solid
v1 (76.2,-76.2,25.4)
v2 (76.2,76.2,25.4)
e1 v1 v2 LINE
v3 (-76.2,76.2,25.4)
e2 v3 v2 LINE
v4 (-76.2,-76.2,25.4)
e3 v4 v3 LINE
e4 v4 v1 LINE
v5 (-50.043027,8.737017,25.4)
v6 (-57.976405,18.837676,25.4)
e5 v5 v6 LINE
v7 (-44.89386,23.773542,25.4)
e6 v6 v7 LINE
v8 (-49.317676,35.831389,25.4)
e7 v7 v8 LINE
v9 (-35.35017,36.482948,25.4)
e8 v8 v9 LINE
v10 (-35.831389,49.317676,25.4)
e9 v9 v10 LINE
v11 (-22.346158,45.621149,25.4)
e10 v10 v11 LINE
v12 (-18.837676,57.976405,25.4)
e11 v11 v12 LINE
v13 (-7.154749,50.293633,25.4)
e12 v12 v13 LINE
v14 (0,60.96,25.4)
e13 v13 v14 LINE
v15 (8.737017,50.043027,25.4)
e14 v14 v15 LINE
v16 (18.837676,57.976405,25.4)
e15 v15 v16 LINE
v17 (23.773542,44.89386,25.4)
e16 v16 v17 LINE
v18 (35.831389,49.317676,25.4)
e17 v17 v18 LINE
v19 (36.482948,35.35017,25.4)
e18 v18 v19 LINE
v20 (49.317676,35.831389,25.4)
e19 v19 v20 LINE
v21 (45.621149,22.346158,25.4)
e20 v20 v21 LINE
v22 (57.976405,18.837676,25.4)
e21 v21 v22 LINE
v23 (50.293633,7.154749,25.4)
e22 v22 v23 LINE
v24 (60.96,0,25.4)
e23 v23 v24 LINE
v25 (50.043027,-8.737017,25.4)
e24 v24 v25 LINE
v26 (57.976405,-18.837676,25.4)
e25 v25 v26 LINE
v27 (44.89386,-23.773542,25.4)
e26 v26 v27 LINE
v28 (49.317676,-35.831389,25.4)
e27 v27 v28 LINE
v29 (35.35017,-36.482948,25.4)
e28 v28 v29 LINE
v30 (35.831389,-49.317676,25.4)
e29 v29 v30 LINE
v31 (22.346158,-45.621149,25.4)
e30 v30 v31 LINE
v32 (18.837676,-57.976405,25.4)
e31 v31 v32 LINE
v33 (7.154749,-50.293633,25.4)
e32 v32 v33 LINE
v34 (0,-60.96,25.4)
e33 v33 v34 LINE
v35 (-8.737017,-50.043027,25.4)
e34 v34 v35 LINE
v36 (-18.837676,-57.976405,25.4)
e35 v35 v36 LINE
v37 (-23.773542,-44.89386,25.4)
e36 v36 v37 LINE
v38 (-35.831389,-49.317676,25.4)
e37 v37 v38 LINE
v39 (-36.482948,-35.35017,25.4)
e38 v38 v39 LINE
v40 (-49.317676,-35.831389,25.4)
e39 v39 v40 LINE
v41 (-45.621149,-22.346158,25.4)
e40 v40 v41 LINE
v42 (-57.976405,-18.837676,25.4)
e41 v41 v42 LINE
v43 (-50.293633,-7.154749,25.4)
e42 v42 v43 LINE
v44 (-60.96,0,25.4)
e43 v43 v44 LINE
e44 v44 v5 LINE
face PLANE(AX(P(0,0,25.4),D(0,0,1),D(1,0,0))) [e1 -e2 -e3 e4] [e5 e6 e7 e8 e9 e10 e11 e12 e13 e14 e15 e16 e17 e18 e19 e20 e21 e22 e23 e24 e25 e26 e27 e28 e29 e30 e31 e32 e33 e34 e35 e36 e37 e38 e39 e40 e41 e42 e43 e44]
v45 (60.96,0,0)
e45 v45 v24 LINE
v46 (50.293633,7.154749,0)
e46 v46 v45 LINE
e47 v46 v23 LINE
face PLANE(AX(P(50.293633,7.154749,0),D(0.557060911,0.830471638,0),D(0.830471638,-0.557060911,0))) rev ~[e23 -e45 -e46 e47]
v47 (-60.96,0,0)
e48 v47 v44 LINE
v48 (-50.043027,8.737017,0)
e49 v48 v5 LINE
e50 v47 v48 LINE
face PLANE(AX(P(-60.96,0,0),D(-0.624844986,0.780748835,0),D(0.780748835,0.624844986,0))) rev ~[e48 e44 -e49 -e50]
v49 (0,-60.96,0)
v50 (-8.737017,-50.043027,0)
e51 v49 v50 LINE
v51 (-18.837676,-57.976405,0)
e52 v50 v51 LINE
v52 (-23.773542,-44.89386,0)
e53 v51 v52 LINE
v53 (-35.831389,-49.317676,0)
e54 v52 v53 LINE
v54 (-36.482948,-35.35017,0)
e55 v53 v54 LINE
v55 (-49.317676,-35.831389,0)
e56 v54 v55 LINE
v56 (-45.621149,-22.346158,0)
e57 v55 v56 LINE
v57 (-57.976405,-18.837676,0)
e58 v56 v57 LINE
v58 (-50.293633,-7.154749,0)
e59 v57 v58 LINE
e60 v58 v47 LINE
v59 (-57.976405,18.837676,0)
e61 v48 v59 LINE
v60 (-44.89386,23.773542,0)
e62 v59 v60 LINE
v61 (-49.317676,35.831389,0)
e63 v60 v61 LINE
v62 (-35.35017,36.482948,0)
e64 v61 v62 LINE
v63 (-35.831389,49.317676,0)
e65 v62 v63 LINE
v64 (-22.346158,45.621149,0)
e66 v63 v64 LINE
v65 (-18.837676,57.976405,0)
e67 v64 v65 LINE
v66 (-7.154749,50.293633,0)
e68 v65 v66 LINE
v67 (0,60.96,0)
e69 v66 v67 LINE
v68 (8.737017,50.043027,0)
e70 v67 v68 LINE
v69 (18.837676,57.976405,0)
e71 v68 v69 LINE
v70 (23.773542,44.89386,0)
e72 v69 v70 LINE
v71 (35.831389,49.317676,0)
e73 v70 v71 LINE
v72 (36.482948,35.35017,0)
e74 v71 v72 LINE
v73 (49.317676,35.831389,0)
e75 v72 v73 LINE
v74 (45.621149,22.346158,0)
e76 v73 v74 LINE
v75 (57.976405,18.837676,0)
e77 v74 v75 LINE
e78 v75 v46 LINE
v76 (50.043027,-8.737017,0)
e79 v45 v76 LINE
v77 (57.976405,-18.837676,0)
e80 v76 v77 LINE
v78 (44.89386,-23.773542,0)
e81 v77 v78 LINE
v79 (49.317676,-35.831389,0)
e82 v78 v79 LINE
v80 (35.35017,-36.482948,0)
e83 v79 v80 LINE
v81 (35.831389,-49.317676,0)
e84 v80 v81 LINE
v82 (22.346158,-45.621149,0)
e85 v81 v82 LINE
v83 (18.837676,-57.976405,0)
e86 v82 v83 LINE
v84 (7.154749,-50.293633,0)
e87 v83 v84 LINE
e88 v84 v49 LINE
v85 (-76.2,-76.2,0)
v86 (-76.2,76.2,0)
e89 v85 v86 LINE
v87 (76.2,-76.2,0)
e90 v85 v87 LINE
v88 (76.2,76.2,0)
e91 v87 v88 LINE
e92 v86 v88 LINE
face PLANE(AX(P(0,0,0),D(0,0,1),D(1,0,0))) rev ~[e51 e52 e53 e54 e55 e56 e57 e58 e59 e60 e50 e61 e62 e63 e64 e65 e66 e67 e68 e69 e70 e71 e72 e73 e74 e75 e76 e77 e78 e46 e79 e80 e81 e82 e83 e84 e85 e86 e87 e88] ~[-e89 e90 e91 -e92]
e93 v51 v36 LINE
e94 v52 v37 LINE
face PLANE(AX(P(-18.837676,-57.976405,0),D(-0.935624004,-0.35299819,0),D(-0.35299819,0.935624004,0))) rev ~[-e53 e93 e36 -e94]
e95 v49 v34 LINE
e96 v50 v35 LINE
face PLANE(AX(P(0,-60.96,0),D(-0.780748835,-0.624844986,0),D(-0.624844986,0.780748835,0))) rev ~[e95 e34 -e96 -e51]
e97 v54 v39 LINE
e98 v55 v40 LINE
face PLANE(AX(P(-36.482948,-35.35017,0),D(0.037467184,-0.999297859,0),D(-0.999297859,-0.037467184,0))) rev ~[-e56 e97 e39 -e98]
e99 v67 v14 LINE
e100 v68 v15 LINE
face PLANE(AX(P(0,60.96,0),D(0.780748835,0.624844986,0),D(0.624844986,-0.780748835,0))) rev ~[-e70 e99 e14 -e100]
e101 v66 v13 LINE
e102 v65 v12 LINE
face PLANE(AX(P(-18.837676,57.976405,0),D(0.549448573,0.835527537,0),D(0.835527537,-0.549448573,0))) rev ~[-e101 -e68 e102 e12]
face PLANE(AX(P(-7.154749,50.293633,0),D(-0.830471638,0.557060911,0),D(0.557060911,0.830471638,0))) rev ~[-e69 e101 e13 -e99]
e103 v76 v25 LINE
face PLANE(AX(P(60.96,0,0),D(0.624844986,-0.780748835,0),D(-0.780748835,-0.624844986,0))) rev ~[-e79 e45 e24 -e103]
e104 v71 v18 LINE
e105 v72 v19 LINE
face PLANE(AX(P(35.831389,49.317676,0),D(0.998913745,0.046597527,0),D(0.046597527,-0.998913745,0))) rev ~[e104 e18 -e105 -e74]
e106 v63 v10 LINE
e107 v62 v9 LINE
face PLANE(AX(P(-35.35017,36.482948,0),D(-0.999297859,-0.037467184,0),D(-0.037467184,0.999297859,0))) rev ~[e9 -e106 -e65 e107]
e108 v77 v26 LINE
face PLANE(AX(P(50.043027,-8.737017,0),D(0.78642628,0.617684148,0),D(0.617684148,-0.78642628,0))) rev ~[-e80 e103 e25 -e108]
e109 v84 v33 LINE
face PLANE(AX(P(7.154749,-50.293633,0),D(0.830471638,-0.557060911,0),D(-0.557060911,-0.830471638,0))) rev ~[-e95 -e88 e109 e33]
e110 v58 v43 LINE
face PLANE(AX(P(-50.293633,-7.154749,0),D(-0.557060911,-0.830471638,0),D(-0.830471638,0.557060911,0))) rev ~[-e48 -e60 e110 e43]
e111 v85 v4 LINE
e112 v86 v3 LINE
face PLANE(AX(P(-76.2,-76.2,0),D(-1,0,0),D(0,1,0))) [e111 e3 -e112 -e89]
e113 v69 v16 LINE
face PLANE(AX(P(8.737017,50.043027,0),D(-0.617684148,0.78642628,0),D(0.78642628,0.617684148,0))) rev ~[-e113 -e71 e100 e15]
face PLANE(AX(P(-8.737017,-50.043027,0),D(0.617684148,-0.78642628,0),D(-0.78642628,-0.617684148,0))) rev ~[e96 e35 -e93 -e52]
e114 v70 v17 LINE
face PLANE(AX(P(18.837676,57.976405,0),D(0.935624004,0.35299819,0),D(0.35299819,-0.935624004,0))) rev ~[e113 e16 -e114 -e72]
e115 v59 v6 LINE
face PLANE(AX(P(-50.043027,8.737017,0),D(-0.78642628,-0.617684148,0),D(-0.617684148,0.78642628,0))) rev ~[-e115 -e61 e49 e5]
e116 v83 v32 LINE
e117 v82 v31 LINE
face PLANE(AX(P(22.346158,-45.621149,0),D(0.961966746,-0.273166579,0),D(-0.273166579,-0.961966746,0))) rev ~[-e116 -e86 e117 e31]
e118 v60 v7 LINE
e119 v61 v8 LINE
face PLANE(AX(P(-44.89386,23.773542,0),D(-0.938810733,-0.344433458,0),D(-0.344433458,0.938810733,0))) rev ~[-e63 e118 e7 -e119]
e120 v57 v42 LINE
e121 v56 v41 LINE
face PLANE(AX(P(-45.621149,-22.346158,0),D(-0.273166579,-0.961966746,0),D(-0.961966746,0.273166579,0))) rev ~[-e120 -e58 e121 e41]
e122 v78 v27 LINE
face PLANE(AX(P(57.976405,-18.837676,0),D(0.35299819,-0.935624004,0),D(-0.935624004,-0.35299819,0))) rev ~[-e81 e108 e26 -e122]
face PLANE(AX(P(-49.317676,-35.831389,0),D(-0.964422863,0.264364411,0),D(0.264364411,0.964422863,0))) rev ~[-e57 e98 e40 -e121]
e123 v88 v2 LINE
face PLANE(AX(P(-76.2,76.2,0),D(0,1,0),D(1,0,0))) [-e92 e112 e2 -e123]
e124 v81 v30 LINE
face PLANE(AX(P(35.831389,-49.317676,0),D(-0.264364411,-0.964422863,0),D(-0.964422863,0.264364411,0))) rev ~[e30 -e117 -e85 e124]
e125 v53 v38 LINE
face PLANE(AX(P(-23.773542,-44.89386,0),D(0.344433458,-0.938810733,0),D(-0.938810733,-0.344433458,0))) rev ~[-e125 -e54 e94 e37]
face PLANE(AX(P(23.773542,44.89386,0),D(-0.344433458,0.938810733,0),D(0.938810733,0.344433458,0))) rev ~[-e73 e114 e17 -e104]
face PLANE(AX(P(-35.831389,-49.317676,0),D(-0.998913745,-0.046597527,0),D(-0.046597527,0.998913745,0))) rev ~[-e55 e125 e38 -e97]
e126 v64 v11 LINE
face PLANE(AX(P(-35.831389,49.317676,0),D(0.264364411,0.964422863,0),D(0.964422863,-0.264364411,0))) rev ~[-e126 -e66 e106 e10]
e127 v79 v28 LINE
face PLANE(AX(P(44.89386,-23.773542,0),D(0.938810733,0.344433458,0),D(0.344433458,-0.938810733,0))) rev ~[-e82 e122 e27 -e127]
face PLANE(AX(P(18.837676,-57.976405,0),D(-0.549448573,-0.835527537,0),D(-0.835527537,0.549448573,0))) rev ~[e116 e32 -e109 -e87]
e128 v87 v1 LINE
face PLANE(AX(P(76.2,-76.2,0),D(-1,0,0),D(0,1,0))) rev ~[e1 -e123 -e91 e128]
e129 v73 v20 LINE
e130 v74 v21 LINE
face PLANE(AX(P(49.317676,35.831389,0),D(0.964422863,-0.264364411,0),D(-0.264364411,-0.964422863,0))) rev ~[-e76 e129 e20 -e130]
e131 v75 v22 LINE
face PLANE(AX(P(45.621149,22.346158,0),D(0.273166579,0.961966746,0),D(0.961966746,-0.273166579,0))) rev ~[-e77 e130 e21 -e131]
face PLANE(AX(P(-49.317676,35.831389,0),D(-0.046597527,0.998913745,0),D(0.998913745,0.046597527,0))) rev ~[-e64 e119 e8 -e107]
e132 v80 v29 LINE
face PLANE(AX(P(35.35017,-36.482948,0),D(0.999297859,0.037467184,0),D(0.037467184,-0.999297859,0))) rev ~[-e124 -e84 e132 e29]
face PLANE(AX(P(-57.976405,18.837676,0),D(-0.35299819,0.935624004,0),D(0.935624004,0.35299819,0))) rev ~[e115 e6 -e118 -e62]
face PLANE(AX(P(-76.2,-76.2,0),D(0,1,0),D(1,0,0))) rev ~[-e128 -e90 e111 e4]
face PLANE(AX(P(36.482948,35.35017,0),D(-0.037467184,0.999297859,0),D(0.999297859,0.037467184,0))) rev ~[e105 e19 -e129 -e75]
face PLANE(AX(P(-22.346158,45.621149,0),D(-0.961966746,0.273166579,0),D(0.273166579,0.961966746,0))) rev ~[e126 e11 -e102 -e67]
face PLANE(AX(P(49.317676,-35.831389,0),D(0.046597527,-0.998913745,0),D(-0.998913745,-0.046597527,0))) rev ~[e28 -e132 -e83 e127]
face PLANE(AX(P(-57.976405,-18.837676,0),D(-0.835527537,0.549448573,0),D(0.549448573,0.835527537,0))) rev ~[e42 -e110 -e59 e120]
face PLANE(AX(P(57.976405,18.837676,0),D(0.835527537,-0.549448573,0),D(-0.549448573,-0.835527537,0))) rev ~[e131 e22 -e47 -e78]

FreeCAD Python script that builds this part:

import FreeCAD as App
import Part
import Sketcher
from FreeCAD import Vector
Q = App.Units.Quantity

doc = App.newDocument("Part")
body = doc.addObject("PartDesign::Body", "Body")

# Sketch on XY plane
sketch1 = body.newObject("Sketcher::SketchObject", "Sketch")
sketch1.AttachmentSupport = (doc.getObject("XY_Plane"), [""])
sketch1.MapMode = "FlatFace"
sketch1.addGeometry(Part.LineSegment(Vector(-76.2, 76.2, 0), Vector(-76.2, -76.2, 0)), False)
sketch1.addGeometry(Part.LineSegment(Vector(-76.2, -76.2, 0), Vector(76.2, -76.2, 0)), False)
sketch1.addGeometry(Part.LineSegment(Vector(76.2, -76.2, 0), Vector(76.2, 76.2, 0)), False)
sketch1.addGeometry(Part.LineSegment(Vector(76.2, 76.2, 0), Vector(-76.2, 76.2, 0)), False)
sketch1.addGeometry(Part.LineSegment(Vector(-18.837676, 57.976405, 0), Vector(-7.154749, 50.293633, 0)), False)
sketch1.addGeometry(Part.LineSegment(Vector(-7.154749, 50.293633, 0), Vector(0, 60.96, 0)), False)
sketch1.addGeometry(Part.LineSegment(Vector(0, 60.96, 0), Vector(8.737017, 50.043027, 0)), False)
sketch1.addGeometry(Part.LineSegment(Vector(8.737017, 50.043027, 0), Vector(18.837676, 57.976405, 0)), False)
sketch1.addGeometry(Part.LineSegment(Vector(18.837676, 57.976405, 0), Vector(23.773542, 44.89386, 0)), False)
sketch1.addGeometry(Part.LineSegment(Vector(23.773542, 44.89386, 0), Vector(35.831389, 49.317676, 0)), False)
sketch1.addGeometry(Part.LineSegment(Vector(35.831389, 49.317676, 0), Vector(36.482948, 35.35017, 0)), False)
sketch1.addGeometry(Part.LineSegment(Vector(36.482948, 35.35017, 0), Vector(49.317676, 35.831389, 0)), False)
sketch1.addGeometry(Part.LineSegment(Vector(49.317676, 35.831389, 0), Vector(45.621149, 22.346158, 0)), False)
sketch1.addGeometry(Part.LineSegment(Vector(45.621149, 22.346158, 0), Vector(57.976405, 18.837676, 0)), False)
sketch1.addGeometry(Part.LineSegment(Vector(57.976405, 18.837676, 0), Vector(50.293633, 7.154749, 0)), False)
sketch1.addGeometry(Part.LineSegment(Vector(50.293633, 7.154749, 0), Vector(60.96, 0, 0)), False)
sketch1.addGeometry(Part.LineSegment(Vector(60.96, 0, 0), Vector(50.043027, -8.737017, 0)), False)
sketch1.addGeometry(Part.LineSegment(Vector(50.043027, -8.737017, 0), Vector(57.976405, -18.837676, 0)), False)
sketch1.addGeometry(Part.LineSegment(Vector(57.976405, -18.837676, 0), Vector(44.89386, -23.773542, 0)), False)
sketch1.addGeometry(Part.LineSegment(Vector(44.89386, -23.773542, 0), Vector(49.317676, -35.831389, 0)), False)
sketch1.addGeometry(Part.LineSegment(Vector(49.317676, -35.831389, 0), Vector(35.35017, -36.482948, 0)), False)
sketch1.addGeometry(Part.LineSegment(Vector(35.35017, -36.482948, 0), Vector(35.831389, -49.317676, 0)), False)
sketch1.addGeometry(Part.LineSegment(Vector(35.831389, -49.317676, 0), Vector(22.346158, -45.621149, 0)), False)
sketch1.addGeometry(Part.LineSegment(Vector(22.346158, -45.621149, 0), Vector(18.837676, -57.976405, 0)), False)
sketch1.addGeometry(Part.LineSegment(Vector(18.837676, -57.976405, 0), Vector(7.154749, -50.293633, 0)), False)
sketch1.addGeometry(Part.LineSegment(Vector(7.154749, -50.293633, 0), Vector(0, -60.96, 0)), False)
sketch1.addGeometry(Part.LineSegment(Vector(0, -60.96, 0), Vector(-8.737017, -50.043027, 0)), False)
sketch1.addGeometry(Part.LineSegment(Vector(-8.737017, -50.043027, 0), Vector(-18.837676, -57.976405, 0)), False)
sketch1.addGeometry(Part.LineSegment(Vector(-18.837676, -57.976405, 0), Vector(-23.773542, -44.89386, 0)), False)
sketch1.addGeometry(Part.LineSegment(Vector(-23.773542, -44.89386, 0), Vector(-35.831389, -49.317676, 0)), False)
sketch1.addGeometry(Part.LineSegment(Vector(-35.831389, -49.317676, 0), Vector(-36.482948, -35.35017, 0)), False)
sketch1.addGeometry(Part.LineSegment(Vector(-36.482948, -35.35017, 0), Vector(-49.317676, -35.831389, 0)), False)
sketch1.addGeometry(Part.LineSegment(Vector(-49.317676, -35.831389, 0), Vector(-45.621149, -22.346158, 0)), False)
sketch1.addGeometry(Part.LineSegment(Vector(-45.621149, -22.346158, 0), Vector(-57.976405, -18.837676, 0)), False)
sketch1.addGeometry(Part.LineSegment(Vector(-57.976405, -18.837676, 0), Vector(-50.293633, -7.154749, 0)), False)
sketch1.addGeometry(Part.LineSegment(Vector(-50.293633, -7.154749, 0), Vector(-60.96, 0, 0)), False)
sketch1.addGeometry(Part.LineSegment(Vector(-60.96, 0, 0), Vector(-50.043027, 8.737017, 0)), False)
sketch1.addGeometry(Part.LineSegment(Vector(-50.043027, 8.737017, 0), Vector(-57.976405, 18.837676, 0)), False)
sketch1.addGeometry(Part.LineSegment(Vector(-57.976405, 18.837676, 0), Vector(-44.89386, 23.773542, 0)), False)
sketch1.addGeometry(Part.LineSegment(Vector(-44.89386, 23.773542, 0), Vector(-49.317676, 35.831389, 0)), False)
sketch1.addGeometry(Part.LineSegment(Vector(-49.317676, 35.831389, 0), Vector(-35.35017, 36.482948, 0)), False)
sketch1.addGeometry(Part.LineSegment(Vector(-35.35017, 36.482948, 0), Vector(-35.831389, 49.317676, 0)), False)
sketch1.addGeometry(Part.LineSegment(Vector(-35.831389, 49.317676, 0), Vector(-22.346158, 45.621149, 0)), False)
sketch1.addGeometry(Part.LineSegment(Vector(-22.346158, 45.621149, 0), Vector(-18.837676, 57.976405, 0)), False)
sketch1.addConstraint(Sketcher.Constraint("Coincident", 0, 2, 1, 1))
sketch1.addConstraint(Sketcher.Constraint("Coincident", 1, 2, 2, 1))
sketch1.addConstraint(Sketcher.Constraint("Coincident", 2, 2, 3, 1))
sketch1.addConstraint(Sketcher.Constraint("Coincident", 3, 2, 0, 1))
sketch1.addConstraint(Sketcher.Constraint("Coincident", 4, 2, 5, 1))
sketch1.addConstraint(Sketcher.Constraint("Coincident", 5, 2, 6, 1))
sketch1.addConstraint(Sketcher.Constraint("Coincident", 6, 2, 7, 1))
sketch1.addConstraint(Sketcher.Constraint("Coincident", 7, 2, 8, 1))
sketch1.addConstraint(Sketcher.Constraint("Coincident", 8, 2, 9, 1))
sketch1.addConstraint(Sketcher.Constraint("Coincident", 9, 2, 10, 1))
sketch1.addConstraint(Sketcher.Constraint("Coincident", 10, 2, 11, 1))
sketch1.addConstraint(Sketcher.Constraint("Coincident", 11, 2, 12, 1))
sketch1.addConstraint(Sketcher.Constraint("Coincident", 12, 2, 13, 1))
sketch1.addConstraint(Sketcher.Constraint("Coincident", 13, 2, 14, 1))
sketch1.addConstraint(Sketcher.Constraint("Coincident", 14, 2, 15, 1))
sketch1.addConstraint(Sketcher.Constraint("Coincident", 15, 2, 16, 1))
sketch1.addConstraint(Sketcher.Constraint("Coincident", 16, 2, 17, 1))
sketch1.addConstraint(Sketcher.Constraint("Coincident", 17, 2, 18, 1))
sketch1.addConstraint(Sketcher.Constraint("Coincident", 18, 2, 19, 1))
sketch1.addConstraint(Sketcher.Constraint("Coincident", 19, 2, 20, 1))
sketch1.addConstraint(Sketcher.Constraint("Coincident", 20, 2, 21, 1))
sketch1.addConstraint(Sketcher.Constraint("Coincident", 21, 2, 22, 1))
sketch1.addConstraint(Sketcher.Constraint("Coincident", 22, 2, 23, 1))
sketch1.addConstraint(Sketcher.Constraint("Coincident", 23, 2, 24, 1))
sketch1.addConstraint(Sketcher.Constraint("Coincident", 24, 2, 25, 1))
sketch1.addConstraint(Sketcher.Constraint("Coincident", 25, 2, 26, 1))
sketch1.addConstraint(Sketcher.Constraint("Coincident", 26, 2, 27, 1))
sketch1.addConstraint(Sketcher.Constraint("Coincident", 27, 2, 28, 1))
sketch1.addConstraint(Sketcher.Constraint("Coincident", 28, 2, 29, 1))
sketch1.addConstraint(Sketcher.Constraint("Coincident", 29, 2, 30, 1))
sketch1.addConstraint(Sketcher.Constraint("Coincident", 30, 2, 31, 1))
sketch1.addConstraint(Sketcher.Constraint("Coincident", 31, 2, 32, 1))
sketch1.addConstraint(Sketcher.Constraint("Coincident", 32, 2, 33, 1))
sketch1.addConstraint(Sketcher.Constraint("Coincident", 33, 2, 34, 1))
sketch1.addConstraint(Sketcher.Constraint("Coincident", 34, 2, 35, 1))
sketch1.addConstraint(Sketcher.Constraint("Coincident", 35, 2, 36, 1))
sketch1.addConstraint(Sketcher.Constraint("Coincident", 36, 2, 37, 1))
sketch1.addConstraint(Sketcher.Constraint("Coincident", 37, 2, 38, 1))
sketch1.addConstraint(Sketcher.Constraint("Coincident", 38, 2, 39, 1))
sketch1.addConstraint(Sketcher.Constraint("Coincident", 39, 2, 40, 1))
sketch1.addConstraint(Sketcher.Constraint("Coincident", 40, 2, 41, 1))
sketch1.addConstraint(Sketcher.Constraint("Coincident", 41, 2, 42, 1))
sketch1.addConstraint(Sketcher.Constraint("Coincident", 42, 2, 43, 1))
sketch1.addConstraint(Sketcher.Constraint("Coincident", 43, 2, 4, 1))
sketch1.addConstraint(Sketcher.Constraint("Vertical", 0))
sketch1.addConstraint(Sketcher.Constraint("Horizontal", 1))
sketch1.addConstraint(Sketcher.Constraint("Vertical", 2))
sketch1.addConstraint(Sketcher.Constraint("Horizontal", 3))
sketch1.addConstraint(Sketcher.Constraint("Symmetric", 0, 2, 2, 2, -1, 1))
sketch1.addConstraint(Sketcher.Constraint("Symmetric", 4, 2, 24, 2, -1, 1))
sketch1.addConstraint(Sketcher.Constraint("Symmetric", 5, 2, 25, 2, -1, 1))
sketch1.addConstraint(Sketcher.Constraint("Symmetric", 6, 2, 26, 2, -1, 1))
sketch1.addConstraint(Sketcher.Constraint("Symmetric", 7, 2, 27, 2, -1, 1))
sketch1.addConstraint(Sketcher.Constraint("Symmetric", 8, 2, 28, 2, -1, 1))
sketch1.addConstraint(Sketcher.Constraint("Symmetric", 9, 2, 29, 2, -1, 1))
sketch1.addConstraint(Sketcher.Constraint("Symmetric", 10, 2, 30, 2, -1, 1))
sketch1.addConstraint(Sketcher.Constraint("Symmetric", 11, 2, 31, 2, -1, 1))
sketch1.addConstraint(Sketcher.Constraint("Symmetric", 12, 2, 32, 2, -1, 1))
sketch1.addConstraint(Sketcher.Constraint("Symmetric", 13, 2, 33, 2, -1, 1))
sketch1.addConstraint(Sketcher.Constraint("Symmetric", 14, 2, 34, 2, -1, 1))
sketch1.addConstraint(Sketcher.Constraint("Symmetric", 15, 2, 35, 2, -1, 1))
sketch1.addConstraint(Sketcher.Constraint("Symmetric", 16, 2, 36, 2, -1, 1))
sketch1.addConstraint(Sketcher.Constraint("Symmetric", 17, 2, 37, 2, -1, 1))
sketch1.addConstraint(Sketcher.Constraint("Symmetric", 18, 2, 38, 2, -1, 1))
sketch1.addConstraint(Sketcher.Constraint("Symmetric", 19, 2, 39, 2, -1, 1))
sketch1.addConstraint(Sketcher.Constraint("Symmetric", 20, 2, 40, 2, -1, 1))
sketch1.addConstraint(Sketcher.Constraint("Symmetric", 21, 2, 41, 2, -1, 1))
sketch1.addConstraint(Sketcher.Constraint("Symmetric", 22, 2, 42, 2, -1, 1))
sketch1.addConstraint(Sketcher.Constraint("Symmetric", 23, 2, 43, 2, -1, 1))
sketch1.addConstraint(Sketcher.Constraint("Symmetric", 23, 2, 27, 2, -2))
sketch1.addConstraint(Sketcher.Constraint("Symmetric", 21, 2, 29, 2, -2))
sketch1.addConstraint(Sketcher.Constraint("Symmetric", 19, 2, 31, 2, -2))
sketch1.addConstraint(Sketcher.Constraint("Symmetric", 17, 2, 33, 2, -2))
sketch1.addConstraint(Sketcher.Constraint("PointOnObject", 5, 2, -2))
sketch1.addConstraint(Sketcher.Constraint("PointOnObject", 15, 2, -1))
sketch1.addConstraint(Sketcher.Constraint("Perpendicular", 4, 14))
sketch1.addConstraint(Sketcher.Constraint("Perpendicular", 5, 15))
sketch1.addConstraint(Sketcher.Constraint("Perpendicular", 6, 16))
sketch1.addConstraint(Sketcher.Constraint("Perpendicular", 7, 17))
sketch1.addConstraint(Sketcher.Constraint("Perpendicular", 8, 18))
sketch1.addConstraint(Sketcher.Constraint("Perpendicular", 9, 19))
sketch1.addConstraint(Sketcher.Constraint("Perpendicular", 10, 20))
sketch1.addConstraint(Sketcher.Constraint("Perpendicular", 11, 21))
sketch1.addConstraint(Sketcher.Constraint("Perpendicular", 12, 22))
sketch1.addConstraint(Sketcher.Constraint("Perpendicular", 13, 23))
sketch1.addConstraint(Sketcher.Constraint("Equal", 3, 0))
sketch1.addConstraint(Sketcher.Constraint("Equal", 4, 6))
sketch1.addConstraint(Sketcher.Constraint("Equal", 5, 7))
sketch1.addConstraint(Sketcher.Constraint("Equal", 6, 8))
sketch1.addConstraint(Sketcher.Constraint("Equal", 7, 9))
sketch1.addConstraint(Sketcher.Constraint("Equal", 8, 10))
sketch1.addConstraint(Sketcher.Constraint("Equal", 9, 11))
sketch1.addConstraint(Sketcher.Constraint("Equal", 10, 12))
sketch1.addConstraint(Sketcher.Constraint("Equal", 11, 13))
sketch1.addConstraint(Sketcher.Constraint("Equal", 12, 14))
sketch1.addConstraint(Sketcher.Constraint("Equal", 13, 15))
sketch1.addConstraint(Sketcher.Constraint("Equal", 16, 18))
sketch1.addConstraint(Sketcher.Constraint("Equal", 17, 19))
sketch1.addConstraint(Sketcher.Constraint("Equal", 18, 20))
sketch1.addConstraint(Sketcher.Constraint("DistanceX", 1, 1, 1, 2, Q("6 in")))
sketch1.addConstraint(Sketcher.Constraint("DistanceY", -1, 1, 5, 2, Q("2.4 in")))
sketch1.addConstraint(Sketcher.Constraint("DistanceX", 7, 2, 11, 2, Q("1.2 in")))
sketch1.addConstraint(Sketcher.Constraint("Distance", 4, Q("0.5504998 in")))
sketch1.addConstraint(Sketcher.Constraint("DistanceX", 10, 2, 12, 2, 9.138201))
sketch1.addConstraint(Sketcher.Constraint("DistanceY", 12, 2, 8, 2, 22.547702))
sketch1.addConstraint(Sketcher.Constraint("DistanceX", 4, 2, -1, 1, 7.154749))
sketch1.addConstraint(Sketcher.Constraint("DistanceX", -1, 1, 8, 2, 23.773542))
pad1 = body.newObject("PartDesign::Pad", "Pad")
pad1.Profile = sketch1
pad1.Length = Q("1 in")

doc.recompute()
